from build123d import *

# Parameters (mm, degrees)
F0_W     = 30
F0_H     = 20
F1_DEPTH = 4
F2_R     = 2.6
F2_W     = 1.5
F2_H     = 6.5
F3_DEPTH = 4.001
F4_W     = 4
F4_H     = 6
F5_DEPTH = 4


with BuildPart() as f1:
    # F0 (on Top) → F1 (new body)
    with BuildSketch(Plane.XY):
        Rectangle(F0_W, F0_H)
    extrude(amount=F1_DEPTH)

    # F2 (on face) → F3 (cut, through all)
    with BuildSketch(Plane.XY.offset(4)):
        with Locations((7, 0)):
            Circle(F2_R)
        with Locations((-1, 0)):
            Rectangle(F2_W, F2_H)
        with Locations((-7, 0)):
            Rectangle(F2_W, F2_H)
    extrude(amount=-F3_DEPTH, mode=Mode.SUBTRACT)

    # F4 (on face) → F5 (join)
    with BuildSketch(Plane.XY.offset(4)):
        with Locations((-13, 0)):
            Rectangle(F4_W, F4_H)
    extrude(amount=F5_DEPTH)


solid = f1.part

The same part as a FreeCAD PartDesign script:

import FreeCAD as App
import Part
import Sketcher
Q = App.Units.Quantity


def add_polygon(sketch, points):
    """Adds a closed chain of lines whose ends are joined by coincident constraints."""
    first, n = sketch.GeometryCount, len(points)
    for a, b in zip(points, points[1:] + points[:1]):
        sketch.addGeometry(Part.LineSegment(App.Vector(*a, 0), App.Vector(*b, 0)), False)
    for i in range(n):
        sketch.addConstraint(Sketcher.Constraint("Coincident", first + i, 2, first + (i + 1) % n, 1))

doc = App.newDocument("Part")
body = doc.addObject("PartDesign::Body", "Body")

# Sketch on XY plane
sketch1 = body.newObject("Sketcher::SketchObject", "Sketch")
sketch1.AttachmentSupport = (doc.getObject("XY_Plane"), [""])
sketch1.MapMode = "FlatFace"
add_polygon(sketch1, [(-15, 10), (-15, -10), (15, -10), (15, 10)])  # lines 0-3
sketch1.addConstraint([
    Sketcher.Constraint("Vertical", 0),
    Sketcher.Constraint("Horizontal", 1),
    Sketcher.Constraint("Vertical", 2),
    Sketcher.Constraint("Horizontal", 3),
    Sketcher.Constraint("Symmetric", 0, 2, 2, 2, -1, 1),
    Sketcher.Constraint("DistanceX", 1, 1, 1, 2, Q("30 mm")),
    Sketcher.Constraint("DistanceY", 0, 2, 0, 1, Q("20 mm")),
])
pad1 = body.newObject("PartDesign::Pad", "Pad")
pad1.Profile = sketch1
pad1.Length = 4

# Sketch on XY plane
sketch2 = body.newObject("Sketcher::SketchObject", "Sketch001")
sketch2.AttachmentSupport = (doc.getObject("XY_Plane"), [""])
sketch2.MapMode = "FlatFace"
sketch2.AttachmentOffset = App.Placement(App.Vector(0, 0, 4), App.Rotation())
sketch2.addGeometry(Part.Circle(App.Vector(7, 0, 0), App.Vector(0, 0, 1), 2.6), False)  # 0
add_polygon(sketch2, [(-1.8, 3.2), (-1.8, -3.2), (-0.2, -3.2), (-0.2, 3.2)])  # lines 1-4
add_polygon(sketch2, [(-7.8, 3.2), (-7.8, -3.2), (-6.2, -3.2), (-6.2, 3.2)])  # lines 5-8
sketch2.addConstraint([
    Sketcher.Constraint("Vertical", 1),
    Sketcher.Constraint("Horizontal", 2),
    Sketcher.Constraint("Vertical", 3),
    Sketcher.Constraint("Horizontal", 4),
    Sketcher.Constraint("Vertical", 5),
    Sketcher.Constraint("Horizontal", 6),
    Sketcher.Constraint("Vertical", 7),
    Sketcher.Constraint("Horizontal", 8),
    Sketcher.Constraint("PointOnObject", 0, 3, -1),
    Sketcher.Constraint("Horizontal", 2, 2, 5, 2),
    Sketcher.Constraint("Horizontal", 4, 2, 7, 2),
    Sketcher.Constraint("Equal", 4, 6),
    Sketcher.Constraint("Diameter", 0, Q("5.2 mm")),
    Sketcher.Constraint("DistanceX", 2, 1, 2, 2, Q("1.5 mm")),
    Sketcher.Constraint("DistanceY", 1, 2, 1, 1, Q("6.5 mm")),
    Sketcher.Constraint("DistanceX", -1, 1, 0, 3, Q("7 mm")),
    Sketcher.Constraint("DistanceX", 5, 2, 1, 2, Q("6 mm")),
    Sketcher.Constraint("DistanceX", 1, 2, -1, 1, Q("1.75 mm")),
    Sketcher.Constraint("DistanceY", 1, 2, -1, 1, Q("3.25 mm")),
])
pocket1 = body.newObject("PartDesign::Pocket", "Pocket")
pocket1.Profile = sketch2
pocket1.Type = "ThroughAll"

# Sketch on XY plane
sketch3 = body.newObject("Sketcher::SketchObject", "Sketch002")
sketch3.AttachmentSupport = (doc.getObject("XY_Plane"), [""])
sketch3.MapMode = "FlatFace"
sketch3.AttachmentOffset = App.Placement(App.Vector(0, 0, 4), App.Rotation())
add_polygon(sketch3, [(-15, 3), (-15, -3), (-11, -3), (-11, 3)])  # lines 0-3
sketch3.addConstraint([
    Sketcher.Constraint("Vertical", 0),
    Sketcher.Constraint("Horizontal", 1),
    Sketcher.Constraint("Vertical", 2),
    Sketcher.Constraint("Horizontal", 3),
    Sketcher.Constraint("DistanceX", 1, 1, 1, 2, Q("4 mm")),
    Sketcher.Constraint("DistanceY", 0, 2, 0, 1, Q("6 mm")),
    Sketcher.Constraint("DistanceX", 0, 2, -1, 1, Q("15 mm")),
    Sketcher.Constraint("DistanceY", 0, 2, -1, 1, Q("3 mm")),
])
pad2 = body.newObject("PartDesign::Pad", "Pad001")
pad2.Profile = sketch3
pad2.Length = 4

doc.recompute()
